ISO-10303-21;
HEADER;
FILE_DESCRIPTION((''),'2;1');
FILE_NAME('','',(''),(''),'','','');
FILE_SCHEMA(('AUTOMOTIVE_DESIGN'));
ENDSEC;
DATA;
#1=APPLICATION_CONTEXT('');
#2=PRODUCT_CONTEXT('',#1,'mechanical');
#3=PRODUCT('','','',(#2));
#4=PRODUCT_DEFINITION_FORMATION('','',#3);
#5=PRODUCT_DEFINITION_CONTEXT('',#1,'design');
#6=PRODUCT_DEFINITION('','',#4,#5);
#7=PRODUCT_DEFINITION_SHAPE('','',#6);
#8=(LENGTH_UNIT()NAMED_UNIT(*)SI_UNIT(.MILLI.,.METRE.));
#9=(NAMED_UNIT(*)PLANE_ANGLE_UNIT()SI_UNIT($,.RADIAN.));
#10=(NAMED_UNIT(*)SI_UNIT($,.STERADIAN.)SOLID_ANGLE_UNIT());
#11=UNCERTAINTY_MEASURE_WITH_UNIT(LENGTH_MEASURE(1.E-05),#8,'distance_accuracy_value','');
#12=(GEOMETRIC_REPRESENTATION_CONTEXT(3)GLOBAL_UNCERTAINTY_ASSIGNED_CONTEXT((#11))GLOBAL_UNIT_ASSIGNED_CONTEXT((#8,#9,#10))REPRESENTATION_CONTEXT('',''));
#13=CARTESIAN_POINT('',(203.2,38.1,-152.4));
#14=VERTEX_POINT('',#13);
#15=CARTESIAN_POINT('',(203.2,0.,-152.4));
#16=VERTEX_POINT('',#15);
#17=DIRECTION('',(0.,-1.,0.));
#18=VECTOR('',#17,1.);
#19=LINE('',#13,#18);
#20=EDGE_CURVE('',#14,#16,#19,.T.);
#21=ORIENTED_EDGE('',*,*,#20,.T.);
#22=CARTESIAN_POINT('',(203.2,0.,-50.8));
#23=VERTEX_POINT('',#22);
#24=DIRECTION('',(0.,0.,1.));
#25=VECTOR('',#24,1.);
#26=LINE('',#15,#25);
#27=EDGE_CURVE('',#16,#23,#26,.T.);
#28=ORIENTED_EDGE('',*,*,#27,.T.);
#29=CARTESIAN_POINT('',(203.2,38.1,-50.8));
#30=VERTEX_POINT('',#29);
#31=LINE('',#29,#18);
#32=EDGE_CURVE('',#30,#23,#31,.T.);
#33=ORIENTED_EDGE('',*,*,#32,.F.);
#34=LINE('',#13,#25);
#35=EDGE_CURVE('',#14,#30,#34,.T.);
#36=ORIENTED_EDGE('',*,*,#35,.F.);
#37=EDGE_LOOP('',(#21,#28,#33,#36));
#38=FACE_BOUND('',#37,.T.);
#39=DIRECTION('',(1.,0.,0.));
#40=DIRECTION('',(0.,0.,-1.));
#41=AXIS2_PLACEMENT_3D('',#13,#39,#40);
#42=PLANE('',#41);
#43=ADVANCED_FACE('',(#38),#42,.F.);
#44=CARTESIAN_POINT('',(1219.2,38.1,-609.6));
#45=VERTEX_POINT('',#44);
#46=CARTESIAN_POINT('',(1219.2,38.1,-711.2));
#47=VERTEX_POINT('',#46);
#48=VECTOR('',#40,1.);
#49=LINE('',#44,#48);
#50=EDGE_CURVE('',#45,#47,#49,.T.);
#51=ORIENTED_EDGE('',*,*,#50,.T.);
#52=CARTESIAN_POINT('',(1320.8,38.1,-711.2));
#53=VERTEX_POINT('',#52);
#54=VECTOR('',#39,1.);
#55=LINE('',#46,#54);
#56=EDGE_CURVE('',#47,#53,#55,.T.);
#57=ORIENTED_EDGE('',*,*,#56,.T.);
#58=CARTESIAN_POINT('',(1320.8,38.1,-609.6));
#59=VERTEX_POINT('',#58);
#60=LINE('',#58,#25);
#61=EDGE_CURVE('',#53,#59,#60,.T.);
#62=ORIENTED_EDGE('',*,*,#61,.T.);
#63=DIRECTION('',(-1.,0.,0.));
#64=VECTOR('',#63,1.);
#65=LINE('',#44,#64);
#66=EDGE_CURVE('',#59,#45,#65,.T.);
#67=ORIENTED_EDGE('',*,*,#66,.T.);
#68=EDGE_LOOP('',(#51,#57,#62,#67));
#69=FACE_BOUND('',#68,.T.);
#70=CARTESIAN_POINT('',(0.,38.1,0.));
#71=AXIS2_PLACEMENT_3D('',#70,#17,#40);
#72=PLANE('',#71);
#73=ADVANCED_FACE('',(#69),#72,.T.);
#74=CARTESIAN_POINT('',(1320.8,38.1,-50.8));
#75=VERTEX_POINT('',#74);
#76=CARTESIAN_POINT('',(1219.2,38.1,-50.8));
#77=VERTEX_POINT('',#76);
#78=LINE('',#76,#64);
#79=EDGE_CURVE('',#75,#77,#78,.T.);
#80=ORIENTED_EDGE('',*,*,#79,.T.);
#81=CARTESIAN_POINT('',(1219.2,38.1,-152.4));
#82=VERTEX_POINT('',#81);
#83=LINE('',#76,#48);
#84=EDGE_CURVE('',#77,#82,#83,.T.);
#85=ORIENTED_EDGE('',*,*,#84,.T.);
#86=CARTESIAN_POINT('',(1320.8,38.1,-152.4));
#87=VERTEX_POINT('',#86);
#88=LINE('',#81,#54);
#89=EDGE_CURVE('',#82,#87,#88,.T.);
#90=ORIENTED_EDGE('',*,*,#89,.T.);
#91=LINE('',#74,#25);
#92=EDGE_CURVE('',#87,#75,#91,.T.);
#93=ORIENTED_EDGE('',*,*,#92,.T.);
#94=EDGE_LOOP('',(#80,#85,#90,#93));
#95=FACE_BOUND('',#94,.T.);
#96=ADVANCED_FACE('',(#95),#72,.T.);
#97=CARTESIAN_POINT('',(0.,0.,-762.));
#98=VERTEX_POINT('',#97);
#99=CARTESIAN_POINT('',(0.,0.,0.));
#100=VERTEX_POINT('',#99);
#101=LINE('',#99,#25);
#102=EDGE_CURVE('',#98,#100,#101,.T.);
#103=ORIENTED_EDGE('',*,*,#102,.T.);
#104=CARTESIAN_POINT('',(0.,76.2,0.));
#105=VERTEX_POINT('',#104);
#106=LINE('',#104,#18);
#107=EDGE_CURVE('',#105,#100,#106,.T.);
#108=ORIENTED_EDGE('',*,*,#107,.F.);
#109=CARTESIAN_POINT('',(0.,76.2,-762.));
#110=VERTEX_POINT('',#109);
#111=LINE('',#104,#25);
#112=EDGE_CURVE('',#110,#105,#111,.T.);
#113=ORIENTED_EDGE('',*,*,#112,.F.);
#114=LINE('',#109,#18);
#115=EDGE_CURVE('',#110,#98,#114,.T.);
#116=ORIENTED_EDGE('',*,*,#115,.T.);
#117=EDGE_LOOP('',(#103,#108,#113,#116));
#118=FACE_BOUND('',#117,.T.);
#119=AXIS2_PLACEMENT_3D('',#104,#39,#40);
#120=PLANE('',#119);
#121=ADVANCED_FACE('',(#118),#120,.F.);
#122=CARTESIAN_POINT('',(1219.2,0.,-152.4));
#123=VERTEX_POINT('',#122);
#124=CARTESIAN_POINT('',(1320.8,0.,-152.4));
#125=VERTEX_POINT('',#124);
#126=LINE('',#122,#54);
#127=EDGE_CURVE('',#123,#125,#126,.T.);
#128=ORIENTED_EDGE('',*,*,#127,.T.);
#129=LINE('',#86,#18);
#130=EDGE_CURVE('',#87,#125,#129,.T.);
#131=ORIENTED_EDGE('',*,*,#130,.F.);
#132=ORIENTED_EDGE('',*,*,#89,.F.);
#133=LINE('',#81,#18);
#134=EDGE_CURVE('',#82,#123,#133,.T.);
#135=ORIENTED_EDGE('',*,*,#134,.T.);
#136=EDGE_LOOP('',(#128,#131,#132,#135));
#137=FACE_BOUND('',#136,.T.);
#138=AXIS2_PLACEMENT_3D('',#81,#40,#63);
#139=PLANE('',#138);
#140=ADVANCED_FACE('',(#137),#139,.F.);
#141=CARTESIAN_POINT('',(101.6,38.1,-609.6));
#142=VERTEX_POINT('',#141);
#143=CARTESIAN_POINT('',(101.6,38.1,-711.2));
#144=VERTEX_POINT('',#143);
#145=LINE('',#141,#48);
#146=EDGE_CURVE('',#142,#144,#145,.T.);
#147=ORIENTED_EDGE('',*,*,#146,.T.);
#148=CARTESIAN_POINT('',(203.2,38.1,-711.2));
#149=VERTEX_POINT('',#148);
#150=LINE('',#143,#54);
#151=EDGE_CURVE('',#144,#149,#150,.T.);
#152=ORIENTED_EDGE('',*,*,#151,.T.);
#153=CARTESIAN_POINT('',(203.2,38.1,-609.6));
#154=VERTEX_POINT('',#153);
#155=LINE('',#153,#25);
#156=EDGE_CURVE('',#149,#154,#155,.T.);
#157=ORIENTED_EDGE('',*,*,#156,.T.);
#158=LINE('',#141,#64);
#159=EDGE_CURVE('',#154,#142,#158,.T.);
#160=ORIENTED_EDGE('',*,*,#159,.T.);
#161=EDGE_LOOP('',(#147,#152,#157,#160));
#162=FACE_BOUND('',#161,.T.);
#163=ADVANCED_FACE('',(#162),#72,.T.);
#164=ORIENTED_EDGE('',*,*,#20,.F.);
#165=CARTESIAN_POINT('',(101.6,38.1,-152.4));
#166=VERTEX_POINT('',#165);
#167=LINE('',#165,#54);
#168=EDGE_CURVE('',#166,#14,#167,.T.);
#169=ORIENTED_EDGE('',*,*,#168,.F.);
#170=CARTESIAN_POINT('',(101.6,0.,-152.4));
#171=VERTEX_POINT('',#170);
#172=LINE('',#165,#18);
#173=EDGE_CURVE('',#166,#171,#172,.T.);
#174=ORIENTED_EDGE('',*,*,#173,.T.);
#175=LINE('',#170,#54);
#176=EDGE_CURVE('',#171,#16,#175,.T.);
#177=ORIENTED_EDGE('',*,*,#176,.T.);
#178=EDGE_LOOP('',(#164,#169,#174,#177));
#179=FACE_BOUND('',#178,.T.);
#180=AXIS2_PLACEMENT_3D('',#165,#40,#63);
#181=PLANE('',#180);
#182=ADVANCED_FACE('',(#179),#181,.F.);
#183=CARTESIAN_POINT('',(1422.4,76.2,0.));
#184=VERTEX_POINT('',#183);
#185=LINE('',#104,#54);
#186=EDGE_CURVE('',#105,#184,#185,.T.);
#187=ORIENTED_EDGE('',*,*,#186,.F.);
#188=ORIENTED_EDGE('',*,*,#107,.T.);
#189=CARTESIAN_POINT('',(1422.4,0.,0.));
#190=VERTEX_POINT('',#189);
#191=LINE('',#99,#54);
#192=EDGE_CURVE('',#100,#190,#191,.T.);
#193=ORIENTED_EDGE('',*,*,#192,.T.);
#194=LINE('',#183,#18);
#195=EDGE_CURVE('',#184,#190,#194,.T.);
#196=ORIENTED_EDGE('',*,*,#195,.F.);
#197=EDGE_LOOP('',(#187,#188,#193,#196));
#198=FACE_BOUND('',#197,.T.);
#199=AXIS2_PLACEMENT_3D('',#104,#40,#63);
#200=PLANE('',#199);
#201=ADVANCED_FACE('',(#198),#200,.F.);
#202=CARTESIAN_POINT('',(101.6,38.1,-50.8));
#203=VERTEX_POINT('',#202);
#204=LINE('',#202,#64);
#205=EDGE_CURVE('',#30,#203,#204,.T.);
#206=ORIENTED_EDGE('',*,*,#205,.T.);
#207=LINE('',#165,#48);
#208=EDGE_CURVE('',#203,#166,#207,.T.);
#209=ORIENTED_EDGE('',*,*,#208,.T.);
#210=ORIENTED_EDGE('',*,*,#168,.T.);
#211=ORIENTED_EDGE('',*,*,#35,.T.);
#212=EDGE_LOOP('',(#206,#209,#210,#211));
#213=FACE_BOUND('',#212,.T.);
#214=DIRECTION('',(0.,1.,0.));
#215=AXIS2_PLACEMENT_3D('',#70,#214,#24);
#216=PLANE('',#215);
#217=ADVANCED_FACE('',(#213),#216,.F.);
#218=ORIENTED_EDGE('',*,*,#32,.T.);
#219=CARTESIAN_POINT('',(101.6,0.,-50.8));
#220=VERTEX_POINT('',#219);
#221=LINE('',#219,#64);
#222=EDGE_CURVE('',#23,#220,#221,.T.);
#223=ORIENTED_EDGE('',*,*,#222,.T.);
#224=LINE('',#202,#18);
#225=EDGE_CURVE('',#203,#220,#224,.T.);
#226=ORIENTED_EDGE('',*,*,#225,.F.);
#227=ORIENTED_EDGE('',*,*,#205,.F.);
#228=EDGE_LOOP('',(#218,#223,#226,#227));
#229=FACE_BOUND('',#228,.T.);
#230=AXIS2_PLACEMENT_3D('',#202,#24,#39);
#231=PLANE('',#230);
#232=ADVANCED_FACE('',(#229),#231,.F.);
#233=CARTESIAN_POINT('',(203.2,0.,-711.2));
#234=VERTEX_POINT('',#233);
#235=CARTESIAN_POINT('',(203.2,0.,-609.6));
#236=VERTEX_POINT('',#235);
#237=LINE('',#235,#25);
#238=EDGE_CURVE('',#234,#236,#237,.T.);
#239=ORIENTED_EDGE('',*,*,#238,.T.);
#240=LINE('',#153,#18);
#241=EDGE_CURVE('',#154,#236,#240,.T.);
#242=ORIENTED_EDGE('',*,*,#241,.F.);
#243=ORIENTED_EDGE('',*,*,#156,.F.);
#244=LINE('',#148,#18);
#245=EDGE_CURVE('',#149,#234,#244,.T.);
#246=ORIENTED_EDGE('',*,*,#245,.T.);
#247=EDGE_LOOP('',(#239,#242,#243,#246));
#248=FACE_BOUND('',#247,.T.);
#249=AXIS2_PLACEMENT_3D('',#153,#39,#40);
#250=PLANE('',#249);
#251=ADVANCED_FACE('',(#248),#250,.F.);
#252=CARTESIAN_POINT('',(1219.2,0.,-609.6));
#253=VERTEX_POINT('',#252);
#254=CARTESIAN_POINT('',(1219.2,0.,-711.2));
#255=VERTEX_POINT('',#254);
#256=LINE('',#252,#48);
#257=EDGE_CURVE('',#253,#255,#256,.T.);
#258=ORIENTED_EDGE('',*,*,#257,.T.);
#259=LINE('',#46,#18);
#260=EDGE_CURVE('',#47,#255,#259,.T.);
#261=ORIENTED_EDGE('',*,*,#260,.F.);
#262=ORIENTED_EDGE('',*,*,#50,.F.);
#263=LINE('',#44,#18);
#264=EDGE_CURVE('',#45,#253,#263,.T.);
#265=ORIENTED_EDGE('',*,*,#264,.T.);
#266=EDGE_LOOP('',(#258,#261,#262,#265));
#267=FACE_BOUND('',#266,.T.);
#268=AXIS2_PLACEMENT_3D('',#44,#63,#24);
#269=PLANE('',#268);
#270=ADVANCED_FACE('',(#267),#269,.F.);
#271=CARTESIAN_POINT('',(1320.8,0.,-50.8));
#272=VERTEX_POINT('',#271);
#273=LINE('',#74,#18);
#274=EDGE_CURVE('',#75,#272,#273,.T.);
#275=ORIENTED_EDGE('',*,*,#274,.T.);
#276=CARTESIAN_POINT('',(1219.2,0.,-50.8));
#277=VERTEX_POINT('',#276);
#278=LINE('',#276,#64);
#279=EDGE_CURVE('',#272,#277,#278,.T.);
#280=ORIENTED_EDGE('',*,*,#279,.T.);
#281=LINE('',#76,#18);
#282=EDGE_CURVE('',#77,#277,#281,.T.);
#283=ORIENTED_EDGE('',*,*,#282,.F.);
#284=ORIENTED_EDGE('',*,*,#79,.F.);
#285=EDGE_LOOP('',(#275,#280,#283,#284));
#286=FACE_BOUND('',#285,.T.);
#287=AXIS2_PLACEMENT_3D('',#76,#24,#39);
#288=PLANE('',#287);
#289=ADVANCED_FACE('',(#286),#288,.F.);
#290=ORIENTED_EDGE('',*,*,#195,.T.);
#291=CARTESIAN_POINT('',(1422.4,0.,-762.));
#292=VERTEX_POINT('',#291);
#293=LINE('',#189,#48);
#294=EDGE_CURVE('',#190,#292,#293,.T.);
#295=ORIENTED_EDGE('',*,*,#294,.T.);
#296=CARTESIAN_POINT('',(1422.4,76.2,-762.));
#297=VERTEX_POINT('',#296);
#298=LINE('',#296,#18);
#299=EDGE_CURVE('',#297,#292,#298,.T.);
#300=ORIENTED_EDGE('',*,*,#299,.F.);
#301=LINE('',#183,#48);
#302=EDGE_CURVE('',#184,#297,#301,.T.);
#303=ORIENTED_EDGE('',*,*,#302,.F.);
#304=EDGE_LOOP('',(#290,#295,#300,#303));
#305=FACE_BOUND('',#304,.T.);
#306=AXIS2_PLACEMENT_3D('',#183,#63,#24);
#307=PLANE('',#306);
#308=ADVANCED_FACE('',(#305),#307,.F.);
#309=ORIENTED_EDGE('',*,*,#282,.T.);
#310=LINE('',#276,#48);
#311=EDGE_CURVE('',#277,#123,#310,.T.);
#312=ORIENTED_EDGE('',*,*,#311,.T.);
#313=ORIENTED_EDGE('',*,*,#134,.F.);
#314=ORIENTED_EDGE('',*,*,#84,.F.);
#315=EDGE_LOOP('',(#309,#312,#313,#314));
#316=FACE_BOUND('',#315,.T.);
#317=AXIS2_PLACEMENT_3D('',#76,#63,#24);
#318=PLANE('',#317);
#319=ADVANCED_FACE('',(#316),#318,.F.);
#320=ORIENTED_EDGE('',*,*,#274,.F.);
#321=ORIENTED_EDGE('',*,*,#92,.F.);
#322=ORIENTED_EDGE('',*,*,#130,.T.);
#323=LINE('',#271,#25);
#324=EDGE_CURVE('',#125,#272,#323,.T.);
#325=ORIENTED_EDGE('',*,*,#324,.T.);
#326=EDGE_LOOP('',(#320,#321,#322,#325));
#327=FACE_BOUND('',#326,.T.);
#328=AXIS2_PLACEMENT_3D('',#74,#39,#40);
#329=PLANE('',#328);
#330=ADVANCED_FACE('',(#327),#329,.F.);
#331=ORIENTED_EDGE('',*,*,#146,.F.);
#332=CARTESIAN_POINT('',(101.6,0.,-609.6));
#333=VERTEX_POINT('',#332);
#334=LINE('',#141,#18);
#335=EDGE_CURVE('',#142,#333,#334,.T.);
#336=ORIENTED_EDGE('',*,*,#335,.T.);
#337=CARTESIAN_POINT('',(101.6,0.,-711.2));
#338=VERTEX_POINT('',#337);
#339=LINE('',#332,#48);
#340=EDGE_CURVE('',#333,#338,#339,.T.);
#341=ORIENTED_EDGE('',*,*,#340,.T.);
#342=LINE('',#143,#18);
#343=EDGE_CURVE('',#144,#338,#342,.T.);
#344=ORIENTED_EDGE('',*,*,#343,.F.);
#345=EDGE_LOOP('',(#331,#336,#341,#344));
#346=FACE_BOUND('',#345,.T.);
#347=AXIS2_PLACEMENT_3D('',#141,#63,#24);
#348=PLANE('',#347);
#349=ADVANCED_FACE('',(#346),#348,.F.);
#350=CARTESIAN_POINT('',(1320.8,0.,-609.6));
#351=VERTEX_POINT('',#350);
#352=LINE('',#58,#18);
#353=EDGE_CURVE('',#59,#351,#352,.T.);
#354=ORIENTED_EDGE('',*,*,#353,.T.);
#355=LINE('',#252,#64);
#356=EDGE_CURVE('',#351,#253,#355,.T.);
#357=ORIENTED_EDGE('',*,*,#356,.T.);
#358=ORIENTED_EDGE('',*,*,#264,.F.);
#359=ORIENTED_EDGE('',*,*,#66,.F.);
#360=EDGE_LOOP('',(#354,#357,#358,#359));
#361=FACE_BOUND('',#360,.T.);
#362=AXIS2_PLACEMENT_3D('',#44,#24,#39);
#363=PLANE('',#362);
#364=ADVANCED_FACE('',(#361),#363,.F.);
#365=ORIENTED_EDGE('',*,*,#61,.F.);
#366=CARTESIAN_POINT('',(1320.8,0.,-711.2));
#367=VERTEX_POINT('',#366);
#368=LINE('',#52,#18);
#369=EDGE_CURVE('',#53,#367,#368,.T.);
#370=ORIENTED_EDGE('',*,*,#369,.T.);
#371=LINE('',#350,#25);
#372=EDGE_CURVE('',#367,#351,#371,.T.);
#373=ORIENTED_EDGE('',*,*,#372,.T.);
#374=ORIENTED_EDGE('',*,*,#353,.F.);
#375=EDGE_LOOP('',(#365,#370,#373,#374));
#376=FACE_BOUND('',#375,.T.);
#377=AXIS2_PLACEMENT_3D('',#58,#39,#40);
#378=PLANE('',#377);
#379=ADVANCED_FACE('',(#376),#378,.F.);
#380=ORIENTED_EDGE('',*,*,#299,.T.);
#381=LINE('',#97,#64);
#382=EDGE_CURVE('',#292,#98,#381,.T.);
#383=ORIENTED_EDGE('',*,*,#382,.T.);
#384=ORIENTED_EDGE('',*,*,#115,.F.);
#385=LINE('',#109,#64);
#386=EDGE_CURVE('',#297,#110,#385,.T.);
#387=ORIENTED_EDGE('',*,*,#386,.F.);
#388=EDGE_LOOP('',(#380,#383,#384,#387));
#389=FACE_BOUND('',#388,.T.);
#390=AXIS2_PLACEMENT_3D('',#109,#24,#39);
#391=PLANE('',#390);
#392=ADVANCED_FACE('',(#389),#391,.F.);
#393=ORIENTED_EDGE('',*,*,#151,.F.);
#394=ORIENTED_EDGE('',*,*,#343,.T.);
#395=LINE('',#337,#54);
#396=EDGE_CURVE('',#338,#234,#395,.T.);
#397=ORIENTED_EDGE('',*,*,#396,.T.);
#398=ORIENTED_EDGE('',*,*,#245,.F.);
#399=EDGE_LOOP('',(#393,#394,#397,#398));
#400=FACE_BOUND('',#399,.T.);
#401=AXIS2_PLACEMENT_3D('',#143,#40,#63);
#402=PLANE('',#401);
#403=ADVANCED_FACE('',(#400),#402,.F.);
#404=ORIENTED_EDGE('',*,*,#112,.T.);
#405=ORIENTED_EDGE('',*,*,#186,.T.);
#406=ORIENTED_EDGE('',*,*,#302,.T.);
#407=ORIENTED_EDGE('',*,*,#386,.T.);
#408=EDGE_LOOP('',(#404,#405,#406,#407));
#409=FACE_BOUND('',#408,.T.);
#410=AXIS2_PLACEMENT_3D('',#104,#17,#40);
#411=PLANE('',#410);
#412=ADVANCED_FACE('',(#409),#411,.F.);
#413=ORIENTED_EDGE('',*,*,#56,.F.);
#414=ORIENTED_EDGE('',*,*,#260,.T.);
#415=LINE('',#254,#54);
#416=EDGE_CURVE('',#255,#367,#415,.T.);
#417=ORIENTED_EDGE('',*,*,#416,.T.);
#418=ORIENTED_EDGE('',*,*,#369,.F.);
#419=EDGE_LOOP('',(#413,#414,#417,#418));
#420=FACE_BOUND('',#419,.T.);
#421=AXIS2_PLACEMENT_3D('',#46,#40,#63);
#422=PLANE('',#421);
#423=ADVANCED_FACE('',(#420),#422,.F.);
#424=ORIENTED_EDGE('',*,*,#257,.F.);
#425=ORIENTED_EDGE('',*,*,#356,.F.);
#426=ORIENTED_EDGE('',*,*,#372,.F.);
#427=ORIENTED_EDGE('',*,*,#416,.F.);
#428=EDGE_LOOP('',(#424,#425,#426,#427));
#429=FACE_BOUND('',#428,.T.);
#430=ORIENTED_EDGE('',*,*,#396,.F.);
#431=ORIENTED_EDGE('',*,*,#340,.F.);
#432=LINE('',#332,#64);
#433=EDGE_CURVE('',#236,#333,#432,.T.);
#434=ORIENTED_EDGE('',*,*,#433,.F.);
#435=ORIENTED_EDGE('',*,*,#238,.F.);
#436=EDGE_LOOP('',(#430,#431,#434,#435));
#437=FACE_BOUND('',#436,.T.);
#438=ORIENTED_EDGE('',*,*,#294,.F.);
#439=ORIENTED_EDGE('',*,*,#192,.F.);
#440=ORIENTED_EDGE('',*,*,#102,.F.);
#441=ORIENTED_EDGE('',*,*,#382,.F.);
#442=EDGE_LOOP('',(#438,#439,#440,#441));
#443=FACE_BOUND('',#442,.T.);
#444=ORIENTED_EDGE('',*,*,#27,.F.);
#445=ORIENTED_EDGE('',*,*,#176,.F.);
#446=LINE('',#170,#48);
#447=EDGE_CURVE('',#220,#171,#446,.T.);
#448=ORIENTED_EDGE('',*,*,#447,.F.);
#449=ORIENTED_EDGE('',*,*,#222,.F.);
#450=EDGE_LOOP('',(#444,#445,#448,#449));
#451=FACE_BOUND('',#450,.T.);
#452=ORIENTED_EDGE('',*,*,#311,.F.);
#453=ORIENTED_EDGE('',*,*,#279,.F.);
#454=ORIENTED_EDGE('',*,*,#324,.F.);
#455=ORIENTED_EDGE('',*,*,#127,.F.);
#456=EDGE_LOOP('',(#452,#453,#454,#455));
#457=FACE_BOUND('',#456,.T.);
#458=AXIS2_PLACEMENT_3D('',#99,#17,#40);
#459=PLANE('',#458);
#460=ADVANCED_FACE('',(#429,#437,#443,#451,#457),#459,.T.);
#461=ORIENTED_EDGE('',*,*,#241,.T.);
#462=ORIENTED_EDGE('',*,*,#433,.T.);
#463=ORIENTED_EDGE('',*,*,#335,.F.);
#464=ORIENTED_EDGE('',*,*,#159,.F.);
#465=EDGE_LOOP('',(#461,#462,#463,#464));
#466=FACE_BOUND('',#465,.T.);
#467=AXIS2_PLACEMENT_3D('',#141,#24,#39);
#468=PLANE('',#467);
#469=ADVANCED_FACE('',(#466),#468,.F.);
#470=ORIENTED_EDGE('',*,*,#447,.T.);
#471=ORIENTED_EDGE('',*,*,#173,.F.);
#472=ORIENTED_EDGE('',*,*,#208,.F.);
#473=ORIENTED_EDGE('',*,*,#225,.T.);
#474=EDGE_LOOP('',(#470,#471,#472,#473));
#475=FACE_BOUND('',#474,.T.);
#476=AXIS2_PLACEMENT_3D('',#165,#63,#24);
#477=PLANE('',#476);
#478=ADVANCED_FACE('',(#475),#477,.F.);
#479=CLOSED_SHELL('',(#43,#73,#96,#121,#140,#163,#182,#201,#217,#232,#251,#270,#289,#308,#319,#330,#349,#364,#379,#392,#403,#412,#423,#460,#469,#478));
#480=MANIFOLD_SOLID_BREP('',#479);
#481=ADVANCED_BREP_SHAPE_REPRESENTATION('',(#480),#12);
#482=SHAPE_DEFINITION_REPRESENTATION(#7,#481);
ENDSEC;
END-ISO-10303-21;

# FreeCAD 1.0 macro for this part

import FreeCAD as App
import Part
import Sketcher
Q = App.Units.Quantity


def add_polygon(sketch, points):
    """Adds a closed chain of lines whose ends are joined by coincident constraints."""
    first, n = sketch.GeometryCount, len(points)
    for a, b in zip(points, points[1:] + points[:1]):
        sketch.addGeometry(Part.LineSegment(App.Vector(*a, 0), App.Vector(*b, 0)), False)
    for i in range(n):
        sketch.addConstraint(Sketcher.Constraint("Coincident", first + i, 2, first + (i + 1) % n, 1))

doc = App.newDocument("Part")
body = doc.addObject("PartDesign::Body", "Body")

# Sketch on XZ plane
sketch1 = body.newObject("Sketcher::SketchObject", "Sketch")
sketch1.AttachmentSupport = (doc.getObject("XZ_Plane"), [""])
sketch1.MapMode = "FlatFace"
add_polygon(sketch1, [(0, -762), (0, 0), (1422.4, 0), (1422.4, -762)])  # lines 0-3
sketch1.addConstraint(Sketcher.Constraint("Vertical", 0))
sketch1.addConstraint(Sketcher.Constraint("Horizontal", 1))
sketch1.addConstraint(Sketcher.Constraint("Vertical", 2))
sketch1.addConstraint(Sketcher.Constraint("Horizontal", 3))
sketch1.addConstraint(Sketcher.Constraint("Coincident", 0, 2, -1, 1))
sketch1.addConstraint(Sketcher.Constraint("DistanceX", 1, 1, 1, 2, Q("56 in")))
sketch1.addConstraint(Sketcher.Constraint("DistanceY", 0, 1, 0, 2, Q("30 in")))
pad1 = body.newObject("PartDesign::Pad", "Pad")
pad1.Profile = sketch1
pad1.Length = Q("3 in")
pad1.Reversed = True

# Sketch on XZ plane
sketch2 = body.newObject("Sketcher::SketchObject", "Sketch001")
sketch2.AttachmentSupport = (doc.getObject("XZ_Plane"), [""])
sketch2.MapMode = "FlatFace"
add_polygon(sketch2, [(101.6, -50.8), (101.6, -152.4), (203.2, -152.4), (203.2, -50.8)])  # lines 0-3
add_polygon(sketch2, [(101.6, -609.6), (101.6, -711.2), (203.2, -711.2), (203.2, -609.6)])  # lines 4-7
add_polygon(sketch2, [(1219.2, -50.8), (1219.2, -152.4), (1320.8, -152.4), (1320.8, -50.8)])  # lines 8-11
add_polygon(sketch2, [(1219.2, -609.6), (1219.2, -711.2), (1320.8, -711.2), (1320.8, -609.6)])  # lines 12-15
sketch2.addConstraint(Sketcher.Constraint("Vertical", 0))
sketch2.addConstraint(Sketcher.Constraint("Horizontal", 1))
sketch2.addConstraint(Sketcher.Constraint("Vertical", 2))
sketch2.addConstraint(Sketcher.Constraint("Horizontal", 3))
sketch2.addConstraint(Sketcher.Constraint("Vertical", 4))
sketch2.addConstraint(Sketcher.Constraint("Horizontal", 5))
sketch2.addConstraint(Sketcher.Constraint("Vertical", 6))
sketch2.addConstraint(Sketcher.Constraint("Horizontal", 7))
sketch2.addConstraint(Sketcher.Constraint("Vertical", 8))
sketch2.addConstraint(Sketcher.Constraint("Horizontal", 9))
sketch2.addConstraint(Sketcher.Constraint("Vertical", 10))
sketch2.addConstraint(Sketcher.Constraint("Horizontal", 11))
sketch2.addConstraint(Sketcher.Constraint("Vertical", 12))
sketch2.addConstraint(Sketcher.Constraint("Horizontal", 13))
sketch2.addConstraint(Sketcher.Constraint("Vertical", 14))
sketch2.addConstraint(Sketcher.Constraint("Horizontal", 15))
sketch2.addConstraint(Sketcher.Constraint("Horizontal", 1, 2, 8, 2))
sketch2.addConstraint(Sketcher.Constraint("Horizontal", 3, 2, 10, 2))
sketch2.addConstraint(Sketcher.Constraint("Horizontal", 5, 2, 12, 2))
sketch2.addConstraint(Sketcher.Constraint("Horizontal", 7, 2, 14, 2))
sketch2.addConstraint(Sketcher.Constraint("Vertical", 3, 2, 4, 2))
sketch2.addConstraint(Sketcher.Constraint("Vertical", 2, 2, 5, 2))
sketch2.addConstraint(Sketcher.Constraint("Vertical", 11, 2, 12, 2))
sketch2.addConstraint(Sketcher.Constraint("Vertical", 10, 2, 13, 2))
sketch2.addConstraint(Sketcher.Constraint("Equal", 7, 9))
sketch2.addConstraint(Sketcher.Constraint("Equal", 15, 0))
sketch2.addConstraint(Sketcher.Constraint("Equal", 2, 4))
sketch2.addConstraint(Sketcher.Constraint("DistanceX", 1, 1, 1, 2, Q("4 in")))
sketch2.addConstraint(Sketcher.Constraint("DistanceX", -1, 1, 0, 2, Q("4 in")))
sketch2.addConstraint(Sketcher.Constraint("DistanceY", 0, 2, -1, 1, Q("6 in")))
sketch2.addConstraint(Sketcher.Constraint("DistanceY", 4, 2, -1, 1, Q("28 in")))
sketch2.addConstraint(Sketcher.Constraint("DistanceX", -1, 1, 8, 2, Q("48 in")))
pocket1 = body.newObject("PartDesign::Pocket", "Pocket")
pocket1.Profile = sketch2
pocket1.Length = Q("1.5 in")

doc.recompute()
